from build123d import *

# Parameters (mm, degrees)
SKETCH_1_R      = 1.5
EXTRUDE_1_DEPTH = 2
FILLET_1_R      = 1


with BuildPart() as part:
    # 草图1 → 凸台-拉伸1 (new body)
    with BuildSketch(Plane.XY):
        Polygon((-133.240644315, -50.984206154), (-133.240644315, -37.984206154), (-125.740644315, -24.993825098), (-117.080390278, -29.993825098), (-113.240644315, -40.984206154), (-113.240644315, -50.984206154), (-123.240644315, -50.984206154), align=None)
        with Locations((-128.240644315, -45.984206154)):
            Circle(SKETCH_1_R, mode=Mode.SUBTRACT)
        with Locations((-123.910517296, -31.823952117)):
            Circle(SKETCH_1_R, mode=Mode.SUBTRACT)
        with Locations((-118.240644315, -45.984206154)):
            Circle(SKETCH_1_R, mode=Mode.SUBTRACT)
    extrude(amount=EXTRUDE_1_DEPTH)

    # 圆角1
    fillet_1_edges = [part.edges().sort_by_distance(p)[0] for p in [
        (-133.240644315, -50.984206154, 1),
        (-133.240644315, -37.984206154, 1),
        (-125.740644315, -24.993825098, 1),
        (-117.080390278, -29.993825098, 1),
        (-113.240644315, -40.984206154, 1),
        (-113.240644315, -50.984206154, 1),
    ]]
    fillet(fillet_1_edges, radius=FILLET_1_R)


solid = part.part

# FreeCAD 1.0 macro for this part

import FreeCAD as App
import Part
import Sketcher

V = App.Vector
Q = App.Units.Quantity


def edges_at(feature, points):
    """Names of the edges that pass closest to the given points."""
    edges = feature.Shape.Edges
    near = lambda p: min(range(len(edges)), key=lambda i: edges[i].distToShape(Part.Vertex(*p))[0])
    return sorted({f"Edge{near(p) + 1}" for p in points})


def add_polygon(sketch, points):
    """Adds a closed chain of lines whose ends are joined by coincident constraints."""
    first, n = sketch.GeometryCount, len(points)
    for a, b in zip(points, points[1:] + points[:1]):
        sketch.addGeometry(Part.LineSegment(App.Vector(*a, 0), App.Vector(*b, 0)), False)
    for i in range(n):
        sketch.addConstraint(Sketcher.Constraint("Coincident", first + i, 2, first + (i + 1) % n, 1))

doc = App.newDocument("Part")
body = doc.addObject("PartDesign::Body", "Body")

# Sketch on XY plane
sketch1 = body.newObject("Sketcher::SketchObject", "Sketch")
sketch1.AttachmentSupport = (doc.getObject("XY_Plane"), [""])
sketch1.MapMode = "FlatFace"
add_polygon(sketch1, [(-133.2, -38), (-133.2, -51), (-113.2, -51), (-113.2, -41), (-117.1, -30), (-125.7, -25)])  # lines 0-5
sketch1.addGeometry(Part.Circle(V(-118.2, -46, 0), V(0, 0, 1), 1.5), False)  # 6
sketch1.addGeometry(Part.Circle(V(-128.2, -46, 0), V(0, 0, 1), 1.5), False)  # 7
sketch1.addGeometry(Part.Circle(V(-123.9, -31.8, 0), V(0, 0, 1), 1.5), False)  # 8
sketch1.addConstraint([
    Sketcher.Constraint("Vertical", 0),
    Sketcher.Constraint("Horizontal", 1),
    Sketcher.Constraint("Vertical", 2),
    Sketcher.Constraint("Equal", 6, 7),
    Sketcher.Constraint("Equal", 7, 8),
    Sketcher.Constraint("Perpendicular", 4, 5),
    Sketcher.Constraint("Horizontal", 6, 3, 7, 3),
    Sketcher.Constraint("Diameter", 6, Q("3 mm")),
    Sketcher.Constraint("DistanceX", 1, 1, 1, 2, Q("20 mm")),
    Sketcher.Constraint("DistanceY", 0, 2, 0, 1, Q("13 mm")),
    Sketcher.Constraint("DistanceY", 2, 1, 2, 2, Q("10 mm")),
    Sketcher.Constraint("Angle", 4, Q("150 deg")),
    Sketcher.Constraint("Distance", 4, Q("10 mm")),
    Sketcher.Constraint("Distance", 5, Q("15 mm")),
    Sketcher.Constraint("DistanceX", 7, 3, 6, 3, Q("10 mm")),
    Sketcher.Constraint("DistanceX", 0, 2, 7, 3, Q("5 mm")),
    Sketcher.Constraint("DistanceY", 0, 2, 7, 3, Q("5 mm")),
    Sketcher.Constraint("DistanceX", 3, 2, -1, 1, Q("117.08039 mm")),
    Sketcher.Constraint("DistanceY", 6, 3, -1, 1, Q("45.984206 mm")),
    Sketcher.Constraint("DistanceX", 8, 3, -1, 1, Q("123.910517 mm")),
    Sketcher.Constraint("DistanceY", 8, 3, -1, 1, Q("31.823952 mm")),
])
pad1 = body.newObject("PartDesign::Pad", "Pad")
pad1.Profile = sketch1
pad1.Length = 2
doc.recompute()

fillet = body.newObject("PartDesign::Fillet", "Fillet")
fillet.Base = (pad1, edges_at(pad1, [
    (-133.241, -50.984, 1),
    (-133.241, -37.984, 1),
    (-125.741, -24.994, 1),
    (-117.08, -29.994, 1),
    (-113.241, -40.984, 1),
    (-113.241, -50.984, 1),
]))
fillet.Radius = 1

doc.recompute()
